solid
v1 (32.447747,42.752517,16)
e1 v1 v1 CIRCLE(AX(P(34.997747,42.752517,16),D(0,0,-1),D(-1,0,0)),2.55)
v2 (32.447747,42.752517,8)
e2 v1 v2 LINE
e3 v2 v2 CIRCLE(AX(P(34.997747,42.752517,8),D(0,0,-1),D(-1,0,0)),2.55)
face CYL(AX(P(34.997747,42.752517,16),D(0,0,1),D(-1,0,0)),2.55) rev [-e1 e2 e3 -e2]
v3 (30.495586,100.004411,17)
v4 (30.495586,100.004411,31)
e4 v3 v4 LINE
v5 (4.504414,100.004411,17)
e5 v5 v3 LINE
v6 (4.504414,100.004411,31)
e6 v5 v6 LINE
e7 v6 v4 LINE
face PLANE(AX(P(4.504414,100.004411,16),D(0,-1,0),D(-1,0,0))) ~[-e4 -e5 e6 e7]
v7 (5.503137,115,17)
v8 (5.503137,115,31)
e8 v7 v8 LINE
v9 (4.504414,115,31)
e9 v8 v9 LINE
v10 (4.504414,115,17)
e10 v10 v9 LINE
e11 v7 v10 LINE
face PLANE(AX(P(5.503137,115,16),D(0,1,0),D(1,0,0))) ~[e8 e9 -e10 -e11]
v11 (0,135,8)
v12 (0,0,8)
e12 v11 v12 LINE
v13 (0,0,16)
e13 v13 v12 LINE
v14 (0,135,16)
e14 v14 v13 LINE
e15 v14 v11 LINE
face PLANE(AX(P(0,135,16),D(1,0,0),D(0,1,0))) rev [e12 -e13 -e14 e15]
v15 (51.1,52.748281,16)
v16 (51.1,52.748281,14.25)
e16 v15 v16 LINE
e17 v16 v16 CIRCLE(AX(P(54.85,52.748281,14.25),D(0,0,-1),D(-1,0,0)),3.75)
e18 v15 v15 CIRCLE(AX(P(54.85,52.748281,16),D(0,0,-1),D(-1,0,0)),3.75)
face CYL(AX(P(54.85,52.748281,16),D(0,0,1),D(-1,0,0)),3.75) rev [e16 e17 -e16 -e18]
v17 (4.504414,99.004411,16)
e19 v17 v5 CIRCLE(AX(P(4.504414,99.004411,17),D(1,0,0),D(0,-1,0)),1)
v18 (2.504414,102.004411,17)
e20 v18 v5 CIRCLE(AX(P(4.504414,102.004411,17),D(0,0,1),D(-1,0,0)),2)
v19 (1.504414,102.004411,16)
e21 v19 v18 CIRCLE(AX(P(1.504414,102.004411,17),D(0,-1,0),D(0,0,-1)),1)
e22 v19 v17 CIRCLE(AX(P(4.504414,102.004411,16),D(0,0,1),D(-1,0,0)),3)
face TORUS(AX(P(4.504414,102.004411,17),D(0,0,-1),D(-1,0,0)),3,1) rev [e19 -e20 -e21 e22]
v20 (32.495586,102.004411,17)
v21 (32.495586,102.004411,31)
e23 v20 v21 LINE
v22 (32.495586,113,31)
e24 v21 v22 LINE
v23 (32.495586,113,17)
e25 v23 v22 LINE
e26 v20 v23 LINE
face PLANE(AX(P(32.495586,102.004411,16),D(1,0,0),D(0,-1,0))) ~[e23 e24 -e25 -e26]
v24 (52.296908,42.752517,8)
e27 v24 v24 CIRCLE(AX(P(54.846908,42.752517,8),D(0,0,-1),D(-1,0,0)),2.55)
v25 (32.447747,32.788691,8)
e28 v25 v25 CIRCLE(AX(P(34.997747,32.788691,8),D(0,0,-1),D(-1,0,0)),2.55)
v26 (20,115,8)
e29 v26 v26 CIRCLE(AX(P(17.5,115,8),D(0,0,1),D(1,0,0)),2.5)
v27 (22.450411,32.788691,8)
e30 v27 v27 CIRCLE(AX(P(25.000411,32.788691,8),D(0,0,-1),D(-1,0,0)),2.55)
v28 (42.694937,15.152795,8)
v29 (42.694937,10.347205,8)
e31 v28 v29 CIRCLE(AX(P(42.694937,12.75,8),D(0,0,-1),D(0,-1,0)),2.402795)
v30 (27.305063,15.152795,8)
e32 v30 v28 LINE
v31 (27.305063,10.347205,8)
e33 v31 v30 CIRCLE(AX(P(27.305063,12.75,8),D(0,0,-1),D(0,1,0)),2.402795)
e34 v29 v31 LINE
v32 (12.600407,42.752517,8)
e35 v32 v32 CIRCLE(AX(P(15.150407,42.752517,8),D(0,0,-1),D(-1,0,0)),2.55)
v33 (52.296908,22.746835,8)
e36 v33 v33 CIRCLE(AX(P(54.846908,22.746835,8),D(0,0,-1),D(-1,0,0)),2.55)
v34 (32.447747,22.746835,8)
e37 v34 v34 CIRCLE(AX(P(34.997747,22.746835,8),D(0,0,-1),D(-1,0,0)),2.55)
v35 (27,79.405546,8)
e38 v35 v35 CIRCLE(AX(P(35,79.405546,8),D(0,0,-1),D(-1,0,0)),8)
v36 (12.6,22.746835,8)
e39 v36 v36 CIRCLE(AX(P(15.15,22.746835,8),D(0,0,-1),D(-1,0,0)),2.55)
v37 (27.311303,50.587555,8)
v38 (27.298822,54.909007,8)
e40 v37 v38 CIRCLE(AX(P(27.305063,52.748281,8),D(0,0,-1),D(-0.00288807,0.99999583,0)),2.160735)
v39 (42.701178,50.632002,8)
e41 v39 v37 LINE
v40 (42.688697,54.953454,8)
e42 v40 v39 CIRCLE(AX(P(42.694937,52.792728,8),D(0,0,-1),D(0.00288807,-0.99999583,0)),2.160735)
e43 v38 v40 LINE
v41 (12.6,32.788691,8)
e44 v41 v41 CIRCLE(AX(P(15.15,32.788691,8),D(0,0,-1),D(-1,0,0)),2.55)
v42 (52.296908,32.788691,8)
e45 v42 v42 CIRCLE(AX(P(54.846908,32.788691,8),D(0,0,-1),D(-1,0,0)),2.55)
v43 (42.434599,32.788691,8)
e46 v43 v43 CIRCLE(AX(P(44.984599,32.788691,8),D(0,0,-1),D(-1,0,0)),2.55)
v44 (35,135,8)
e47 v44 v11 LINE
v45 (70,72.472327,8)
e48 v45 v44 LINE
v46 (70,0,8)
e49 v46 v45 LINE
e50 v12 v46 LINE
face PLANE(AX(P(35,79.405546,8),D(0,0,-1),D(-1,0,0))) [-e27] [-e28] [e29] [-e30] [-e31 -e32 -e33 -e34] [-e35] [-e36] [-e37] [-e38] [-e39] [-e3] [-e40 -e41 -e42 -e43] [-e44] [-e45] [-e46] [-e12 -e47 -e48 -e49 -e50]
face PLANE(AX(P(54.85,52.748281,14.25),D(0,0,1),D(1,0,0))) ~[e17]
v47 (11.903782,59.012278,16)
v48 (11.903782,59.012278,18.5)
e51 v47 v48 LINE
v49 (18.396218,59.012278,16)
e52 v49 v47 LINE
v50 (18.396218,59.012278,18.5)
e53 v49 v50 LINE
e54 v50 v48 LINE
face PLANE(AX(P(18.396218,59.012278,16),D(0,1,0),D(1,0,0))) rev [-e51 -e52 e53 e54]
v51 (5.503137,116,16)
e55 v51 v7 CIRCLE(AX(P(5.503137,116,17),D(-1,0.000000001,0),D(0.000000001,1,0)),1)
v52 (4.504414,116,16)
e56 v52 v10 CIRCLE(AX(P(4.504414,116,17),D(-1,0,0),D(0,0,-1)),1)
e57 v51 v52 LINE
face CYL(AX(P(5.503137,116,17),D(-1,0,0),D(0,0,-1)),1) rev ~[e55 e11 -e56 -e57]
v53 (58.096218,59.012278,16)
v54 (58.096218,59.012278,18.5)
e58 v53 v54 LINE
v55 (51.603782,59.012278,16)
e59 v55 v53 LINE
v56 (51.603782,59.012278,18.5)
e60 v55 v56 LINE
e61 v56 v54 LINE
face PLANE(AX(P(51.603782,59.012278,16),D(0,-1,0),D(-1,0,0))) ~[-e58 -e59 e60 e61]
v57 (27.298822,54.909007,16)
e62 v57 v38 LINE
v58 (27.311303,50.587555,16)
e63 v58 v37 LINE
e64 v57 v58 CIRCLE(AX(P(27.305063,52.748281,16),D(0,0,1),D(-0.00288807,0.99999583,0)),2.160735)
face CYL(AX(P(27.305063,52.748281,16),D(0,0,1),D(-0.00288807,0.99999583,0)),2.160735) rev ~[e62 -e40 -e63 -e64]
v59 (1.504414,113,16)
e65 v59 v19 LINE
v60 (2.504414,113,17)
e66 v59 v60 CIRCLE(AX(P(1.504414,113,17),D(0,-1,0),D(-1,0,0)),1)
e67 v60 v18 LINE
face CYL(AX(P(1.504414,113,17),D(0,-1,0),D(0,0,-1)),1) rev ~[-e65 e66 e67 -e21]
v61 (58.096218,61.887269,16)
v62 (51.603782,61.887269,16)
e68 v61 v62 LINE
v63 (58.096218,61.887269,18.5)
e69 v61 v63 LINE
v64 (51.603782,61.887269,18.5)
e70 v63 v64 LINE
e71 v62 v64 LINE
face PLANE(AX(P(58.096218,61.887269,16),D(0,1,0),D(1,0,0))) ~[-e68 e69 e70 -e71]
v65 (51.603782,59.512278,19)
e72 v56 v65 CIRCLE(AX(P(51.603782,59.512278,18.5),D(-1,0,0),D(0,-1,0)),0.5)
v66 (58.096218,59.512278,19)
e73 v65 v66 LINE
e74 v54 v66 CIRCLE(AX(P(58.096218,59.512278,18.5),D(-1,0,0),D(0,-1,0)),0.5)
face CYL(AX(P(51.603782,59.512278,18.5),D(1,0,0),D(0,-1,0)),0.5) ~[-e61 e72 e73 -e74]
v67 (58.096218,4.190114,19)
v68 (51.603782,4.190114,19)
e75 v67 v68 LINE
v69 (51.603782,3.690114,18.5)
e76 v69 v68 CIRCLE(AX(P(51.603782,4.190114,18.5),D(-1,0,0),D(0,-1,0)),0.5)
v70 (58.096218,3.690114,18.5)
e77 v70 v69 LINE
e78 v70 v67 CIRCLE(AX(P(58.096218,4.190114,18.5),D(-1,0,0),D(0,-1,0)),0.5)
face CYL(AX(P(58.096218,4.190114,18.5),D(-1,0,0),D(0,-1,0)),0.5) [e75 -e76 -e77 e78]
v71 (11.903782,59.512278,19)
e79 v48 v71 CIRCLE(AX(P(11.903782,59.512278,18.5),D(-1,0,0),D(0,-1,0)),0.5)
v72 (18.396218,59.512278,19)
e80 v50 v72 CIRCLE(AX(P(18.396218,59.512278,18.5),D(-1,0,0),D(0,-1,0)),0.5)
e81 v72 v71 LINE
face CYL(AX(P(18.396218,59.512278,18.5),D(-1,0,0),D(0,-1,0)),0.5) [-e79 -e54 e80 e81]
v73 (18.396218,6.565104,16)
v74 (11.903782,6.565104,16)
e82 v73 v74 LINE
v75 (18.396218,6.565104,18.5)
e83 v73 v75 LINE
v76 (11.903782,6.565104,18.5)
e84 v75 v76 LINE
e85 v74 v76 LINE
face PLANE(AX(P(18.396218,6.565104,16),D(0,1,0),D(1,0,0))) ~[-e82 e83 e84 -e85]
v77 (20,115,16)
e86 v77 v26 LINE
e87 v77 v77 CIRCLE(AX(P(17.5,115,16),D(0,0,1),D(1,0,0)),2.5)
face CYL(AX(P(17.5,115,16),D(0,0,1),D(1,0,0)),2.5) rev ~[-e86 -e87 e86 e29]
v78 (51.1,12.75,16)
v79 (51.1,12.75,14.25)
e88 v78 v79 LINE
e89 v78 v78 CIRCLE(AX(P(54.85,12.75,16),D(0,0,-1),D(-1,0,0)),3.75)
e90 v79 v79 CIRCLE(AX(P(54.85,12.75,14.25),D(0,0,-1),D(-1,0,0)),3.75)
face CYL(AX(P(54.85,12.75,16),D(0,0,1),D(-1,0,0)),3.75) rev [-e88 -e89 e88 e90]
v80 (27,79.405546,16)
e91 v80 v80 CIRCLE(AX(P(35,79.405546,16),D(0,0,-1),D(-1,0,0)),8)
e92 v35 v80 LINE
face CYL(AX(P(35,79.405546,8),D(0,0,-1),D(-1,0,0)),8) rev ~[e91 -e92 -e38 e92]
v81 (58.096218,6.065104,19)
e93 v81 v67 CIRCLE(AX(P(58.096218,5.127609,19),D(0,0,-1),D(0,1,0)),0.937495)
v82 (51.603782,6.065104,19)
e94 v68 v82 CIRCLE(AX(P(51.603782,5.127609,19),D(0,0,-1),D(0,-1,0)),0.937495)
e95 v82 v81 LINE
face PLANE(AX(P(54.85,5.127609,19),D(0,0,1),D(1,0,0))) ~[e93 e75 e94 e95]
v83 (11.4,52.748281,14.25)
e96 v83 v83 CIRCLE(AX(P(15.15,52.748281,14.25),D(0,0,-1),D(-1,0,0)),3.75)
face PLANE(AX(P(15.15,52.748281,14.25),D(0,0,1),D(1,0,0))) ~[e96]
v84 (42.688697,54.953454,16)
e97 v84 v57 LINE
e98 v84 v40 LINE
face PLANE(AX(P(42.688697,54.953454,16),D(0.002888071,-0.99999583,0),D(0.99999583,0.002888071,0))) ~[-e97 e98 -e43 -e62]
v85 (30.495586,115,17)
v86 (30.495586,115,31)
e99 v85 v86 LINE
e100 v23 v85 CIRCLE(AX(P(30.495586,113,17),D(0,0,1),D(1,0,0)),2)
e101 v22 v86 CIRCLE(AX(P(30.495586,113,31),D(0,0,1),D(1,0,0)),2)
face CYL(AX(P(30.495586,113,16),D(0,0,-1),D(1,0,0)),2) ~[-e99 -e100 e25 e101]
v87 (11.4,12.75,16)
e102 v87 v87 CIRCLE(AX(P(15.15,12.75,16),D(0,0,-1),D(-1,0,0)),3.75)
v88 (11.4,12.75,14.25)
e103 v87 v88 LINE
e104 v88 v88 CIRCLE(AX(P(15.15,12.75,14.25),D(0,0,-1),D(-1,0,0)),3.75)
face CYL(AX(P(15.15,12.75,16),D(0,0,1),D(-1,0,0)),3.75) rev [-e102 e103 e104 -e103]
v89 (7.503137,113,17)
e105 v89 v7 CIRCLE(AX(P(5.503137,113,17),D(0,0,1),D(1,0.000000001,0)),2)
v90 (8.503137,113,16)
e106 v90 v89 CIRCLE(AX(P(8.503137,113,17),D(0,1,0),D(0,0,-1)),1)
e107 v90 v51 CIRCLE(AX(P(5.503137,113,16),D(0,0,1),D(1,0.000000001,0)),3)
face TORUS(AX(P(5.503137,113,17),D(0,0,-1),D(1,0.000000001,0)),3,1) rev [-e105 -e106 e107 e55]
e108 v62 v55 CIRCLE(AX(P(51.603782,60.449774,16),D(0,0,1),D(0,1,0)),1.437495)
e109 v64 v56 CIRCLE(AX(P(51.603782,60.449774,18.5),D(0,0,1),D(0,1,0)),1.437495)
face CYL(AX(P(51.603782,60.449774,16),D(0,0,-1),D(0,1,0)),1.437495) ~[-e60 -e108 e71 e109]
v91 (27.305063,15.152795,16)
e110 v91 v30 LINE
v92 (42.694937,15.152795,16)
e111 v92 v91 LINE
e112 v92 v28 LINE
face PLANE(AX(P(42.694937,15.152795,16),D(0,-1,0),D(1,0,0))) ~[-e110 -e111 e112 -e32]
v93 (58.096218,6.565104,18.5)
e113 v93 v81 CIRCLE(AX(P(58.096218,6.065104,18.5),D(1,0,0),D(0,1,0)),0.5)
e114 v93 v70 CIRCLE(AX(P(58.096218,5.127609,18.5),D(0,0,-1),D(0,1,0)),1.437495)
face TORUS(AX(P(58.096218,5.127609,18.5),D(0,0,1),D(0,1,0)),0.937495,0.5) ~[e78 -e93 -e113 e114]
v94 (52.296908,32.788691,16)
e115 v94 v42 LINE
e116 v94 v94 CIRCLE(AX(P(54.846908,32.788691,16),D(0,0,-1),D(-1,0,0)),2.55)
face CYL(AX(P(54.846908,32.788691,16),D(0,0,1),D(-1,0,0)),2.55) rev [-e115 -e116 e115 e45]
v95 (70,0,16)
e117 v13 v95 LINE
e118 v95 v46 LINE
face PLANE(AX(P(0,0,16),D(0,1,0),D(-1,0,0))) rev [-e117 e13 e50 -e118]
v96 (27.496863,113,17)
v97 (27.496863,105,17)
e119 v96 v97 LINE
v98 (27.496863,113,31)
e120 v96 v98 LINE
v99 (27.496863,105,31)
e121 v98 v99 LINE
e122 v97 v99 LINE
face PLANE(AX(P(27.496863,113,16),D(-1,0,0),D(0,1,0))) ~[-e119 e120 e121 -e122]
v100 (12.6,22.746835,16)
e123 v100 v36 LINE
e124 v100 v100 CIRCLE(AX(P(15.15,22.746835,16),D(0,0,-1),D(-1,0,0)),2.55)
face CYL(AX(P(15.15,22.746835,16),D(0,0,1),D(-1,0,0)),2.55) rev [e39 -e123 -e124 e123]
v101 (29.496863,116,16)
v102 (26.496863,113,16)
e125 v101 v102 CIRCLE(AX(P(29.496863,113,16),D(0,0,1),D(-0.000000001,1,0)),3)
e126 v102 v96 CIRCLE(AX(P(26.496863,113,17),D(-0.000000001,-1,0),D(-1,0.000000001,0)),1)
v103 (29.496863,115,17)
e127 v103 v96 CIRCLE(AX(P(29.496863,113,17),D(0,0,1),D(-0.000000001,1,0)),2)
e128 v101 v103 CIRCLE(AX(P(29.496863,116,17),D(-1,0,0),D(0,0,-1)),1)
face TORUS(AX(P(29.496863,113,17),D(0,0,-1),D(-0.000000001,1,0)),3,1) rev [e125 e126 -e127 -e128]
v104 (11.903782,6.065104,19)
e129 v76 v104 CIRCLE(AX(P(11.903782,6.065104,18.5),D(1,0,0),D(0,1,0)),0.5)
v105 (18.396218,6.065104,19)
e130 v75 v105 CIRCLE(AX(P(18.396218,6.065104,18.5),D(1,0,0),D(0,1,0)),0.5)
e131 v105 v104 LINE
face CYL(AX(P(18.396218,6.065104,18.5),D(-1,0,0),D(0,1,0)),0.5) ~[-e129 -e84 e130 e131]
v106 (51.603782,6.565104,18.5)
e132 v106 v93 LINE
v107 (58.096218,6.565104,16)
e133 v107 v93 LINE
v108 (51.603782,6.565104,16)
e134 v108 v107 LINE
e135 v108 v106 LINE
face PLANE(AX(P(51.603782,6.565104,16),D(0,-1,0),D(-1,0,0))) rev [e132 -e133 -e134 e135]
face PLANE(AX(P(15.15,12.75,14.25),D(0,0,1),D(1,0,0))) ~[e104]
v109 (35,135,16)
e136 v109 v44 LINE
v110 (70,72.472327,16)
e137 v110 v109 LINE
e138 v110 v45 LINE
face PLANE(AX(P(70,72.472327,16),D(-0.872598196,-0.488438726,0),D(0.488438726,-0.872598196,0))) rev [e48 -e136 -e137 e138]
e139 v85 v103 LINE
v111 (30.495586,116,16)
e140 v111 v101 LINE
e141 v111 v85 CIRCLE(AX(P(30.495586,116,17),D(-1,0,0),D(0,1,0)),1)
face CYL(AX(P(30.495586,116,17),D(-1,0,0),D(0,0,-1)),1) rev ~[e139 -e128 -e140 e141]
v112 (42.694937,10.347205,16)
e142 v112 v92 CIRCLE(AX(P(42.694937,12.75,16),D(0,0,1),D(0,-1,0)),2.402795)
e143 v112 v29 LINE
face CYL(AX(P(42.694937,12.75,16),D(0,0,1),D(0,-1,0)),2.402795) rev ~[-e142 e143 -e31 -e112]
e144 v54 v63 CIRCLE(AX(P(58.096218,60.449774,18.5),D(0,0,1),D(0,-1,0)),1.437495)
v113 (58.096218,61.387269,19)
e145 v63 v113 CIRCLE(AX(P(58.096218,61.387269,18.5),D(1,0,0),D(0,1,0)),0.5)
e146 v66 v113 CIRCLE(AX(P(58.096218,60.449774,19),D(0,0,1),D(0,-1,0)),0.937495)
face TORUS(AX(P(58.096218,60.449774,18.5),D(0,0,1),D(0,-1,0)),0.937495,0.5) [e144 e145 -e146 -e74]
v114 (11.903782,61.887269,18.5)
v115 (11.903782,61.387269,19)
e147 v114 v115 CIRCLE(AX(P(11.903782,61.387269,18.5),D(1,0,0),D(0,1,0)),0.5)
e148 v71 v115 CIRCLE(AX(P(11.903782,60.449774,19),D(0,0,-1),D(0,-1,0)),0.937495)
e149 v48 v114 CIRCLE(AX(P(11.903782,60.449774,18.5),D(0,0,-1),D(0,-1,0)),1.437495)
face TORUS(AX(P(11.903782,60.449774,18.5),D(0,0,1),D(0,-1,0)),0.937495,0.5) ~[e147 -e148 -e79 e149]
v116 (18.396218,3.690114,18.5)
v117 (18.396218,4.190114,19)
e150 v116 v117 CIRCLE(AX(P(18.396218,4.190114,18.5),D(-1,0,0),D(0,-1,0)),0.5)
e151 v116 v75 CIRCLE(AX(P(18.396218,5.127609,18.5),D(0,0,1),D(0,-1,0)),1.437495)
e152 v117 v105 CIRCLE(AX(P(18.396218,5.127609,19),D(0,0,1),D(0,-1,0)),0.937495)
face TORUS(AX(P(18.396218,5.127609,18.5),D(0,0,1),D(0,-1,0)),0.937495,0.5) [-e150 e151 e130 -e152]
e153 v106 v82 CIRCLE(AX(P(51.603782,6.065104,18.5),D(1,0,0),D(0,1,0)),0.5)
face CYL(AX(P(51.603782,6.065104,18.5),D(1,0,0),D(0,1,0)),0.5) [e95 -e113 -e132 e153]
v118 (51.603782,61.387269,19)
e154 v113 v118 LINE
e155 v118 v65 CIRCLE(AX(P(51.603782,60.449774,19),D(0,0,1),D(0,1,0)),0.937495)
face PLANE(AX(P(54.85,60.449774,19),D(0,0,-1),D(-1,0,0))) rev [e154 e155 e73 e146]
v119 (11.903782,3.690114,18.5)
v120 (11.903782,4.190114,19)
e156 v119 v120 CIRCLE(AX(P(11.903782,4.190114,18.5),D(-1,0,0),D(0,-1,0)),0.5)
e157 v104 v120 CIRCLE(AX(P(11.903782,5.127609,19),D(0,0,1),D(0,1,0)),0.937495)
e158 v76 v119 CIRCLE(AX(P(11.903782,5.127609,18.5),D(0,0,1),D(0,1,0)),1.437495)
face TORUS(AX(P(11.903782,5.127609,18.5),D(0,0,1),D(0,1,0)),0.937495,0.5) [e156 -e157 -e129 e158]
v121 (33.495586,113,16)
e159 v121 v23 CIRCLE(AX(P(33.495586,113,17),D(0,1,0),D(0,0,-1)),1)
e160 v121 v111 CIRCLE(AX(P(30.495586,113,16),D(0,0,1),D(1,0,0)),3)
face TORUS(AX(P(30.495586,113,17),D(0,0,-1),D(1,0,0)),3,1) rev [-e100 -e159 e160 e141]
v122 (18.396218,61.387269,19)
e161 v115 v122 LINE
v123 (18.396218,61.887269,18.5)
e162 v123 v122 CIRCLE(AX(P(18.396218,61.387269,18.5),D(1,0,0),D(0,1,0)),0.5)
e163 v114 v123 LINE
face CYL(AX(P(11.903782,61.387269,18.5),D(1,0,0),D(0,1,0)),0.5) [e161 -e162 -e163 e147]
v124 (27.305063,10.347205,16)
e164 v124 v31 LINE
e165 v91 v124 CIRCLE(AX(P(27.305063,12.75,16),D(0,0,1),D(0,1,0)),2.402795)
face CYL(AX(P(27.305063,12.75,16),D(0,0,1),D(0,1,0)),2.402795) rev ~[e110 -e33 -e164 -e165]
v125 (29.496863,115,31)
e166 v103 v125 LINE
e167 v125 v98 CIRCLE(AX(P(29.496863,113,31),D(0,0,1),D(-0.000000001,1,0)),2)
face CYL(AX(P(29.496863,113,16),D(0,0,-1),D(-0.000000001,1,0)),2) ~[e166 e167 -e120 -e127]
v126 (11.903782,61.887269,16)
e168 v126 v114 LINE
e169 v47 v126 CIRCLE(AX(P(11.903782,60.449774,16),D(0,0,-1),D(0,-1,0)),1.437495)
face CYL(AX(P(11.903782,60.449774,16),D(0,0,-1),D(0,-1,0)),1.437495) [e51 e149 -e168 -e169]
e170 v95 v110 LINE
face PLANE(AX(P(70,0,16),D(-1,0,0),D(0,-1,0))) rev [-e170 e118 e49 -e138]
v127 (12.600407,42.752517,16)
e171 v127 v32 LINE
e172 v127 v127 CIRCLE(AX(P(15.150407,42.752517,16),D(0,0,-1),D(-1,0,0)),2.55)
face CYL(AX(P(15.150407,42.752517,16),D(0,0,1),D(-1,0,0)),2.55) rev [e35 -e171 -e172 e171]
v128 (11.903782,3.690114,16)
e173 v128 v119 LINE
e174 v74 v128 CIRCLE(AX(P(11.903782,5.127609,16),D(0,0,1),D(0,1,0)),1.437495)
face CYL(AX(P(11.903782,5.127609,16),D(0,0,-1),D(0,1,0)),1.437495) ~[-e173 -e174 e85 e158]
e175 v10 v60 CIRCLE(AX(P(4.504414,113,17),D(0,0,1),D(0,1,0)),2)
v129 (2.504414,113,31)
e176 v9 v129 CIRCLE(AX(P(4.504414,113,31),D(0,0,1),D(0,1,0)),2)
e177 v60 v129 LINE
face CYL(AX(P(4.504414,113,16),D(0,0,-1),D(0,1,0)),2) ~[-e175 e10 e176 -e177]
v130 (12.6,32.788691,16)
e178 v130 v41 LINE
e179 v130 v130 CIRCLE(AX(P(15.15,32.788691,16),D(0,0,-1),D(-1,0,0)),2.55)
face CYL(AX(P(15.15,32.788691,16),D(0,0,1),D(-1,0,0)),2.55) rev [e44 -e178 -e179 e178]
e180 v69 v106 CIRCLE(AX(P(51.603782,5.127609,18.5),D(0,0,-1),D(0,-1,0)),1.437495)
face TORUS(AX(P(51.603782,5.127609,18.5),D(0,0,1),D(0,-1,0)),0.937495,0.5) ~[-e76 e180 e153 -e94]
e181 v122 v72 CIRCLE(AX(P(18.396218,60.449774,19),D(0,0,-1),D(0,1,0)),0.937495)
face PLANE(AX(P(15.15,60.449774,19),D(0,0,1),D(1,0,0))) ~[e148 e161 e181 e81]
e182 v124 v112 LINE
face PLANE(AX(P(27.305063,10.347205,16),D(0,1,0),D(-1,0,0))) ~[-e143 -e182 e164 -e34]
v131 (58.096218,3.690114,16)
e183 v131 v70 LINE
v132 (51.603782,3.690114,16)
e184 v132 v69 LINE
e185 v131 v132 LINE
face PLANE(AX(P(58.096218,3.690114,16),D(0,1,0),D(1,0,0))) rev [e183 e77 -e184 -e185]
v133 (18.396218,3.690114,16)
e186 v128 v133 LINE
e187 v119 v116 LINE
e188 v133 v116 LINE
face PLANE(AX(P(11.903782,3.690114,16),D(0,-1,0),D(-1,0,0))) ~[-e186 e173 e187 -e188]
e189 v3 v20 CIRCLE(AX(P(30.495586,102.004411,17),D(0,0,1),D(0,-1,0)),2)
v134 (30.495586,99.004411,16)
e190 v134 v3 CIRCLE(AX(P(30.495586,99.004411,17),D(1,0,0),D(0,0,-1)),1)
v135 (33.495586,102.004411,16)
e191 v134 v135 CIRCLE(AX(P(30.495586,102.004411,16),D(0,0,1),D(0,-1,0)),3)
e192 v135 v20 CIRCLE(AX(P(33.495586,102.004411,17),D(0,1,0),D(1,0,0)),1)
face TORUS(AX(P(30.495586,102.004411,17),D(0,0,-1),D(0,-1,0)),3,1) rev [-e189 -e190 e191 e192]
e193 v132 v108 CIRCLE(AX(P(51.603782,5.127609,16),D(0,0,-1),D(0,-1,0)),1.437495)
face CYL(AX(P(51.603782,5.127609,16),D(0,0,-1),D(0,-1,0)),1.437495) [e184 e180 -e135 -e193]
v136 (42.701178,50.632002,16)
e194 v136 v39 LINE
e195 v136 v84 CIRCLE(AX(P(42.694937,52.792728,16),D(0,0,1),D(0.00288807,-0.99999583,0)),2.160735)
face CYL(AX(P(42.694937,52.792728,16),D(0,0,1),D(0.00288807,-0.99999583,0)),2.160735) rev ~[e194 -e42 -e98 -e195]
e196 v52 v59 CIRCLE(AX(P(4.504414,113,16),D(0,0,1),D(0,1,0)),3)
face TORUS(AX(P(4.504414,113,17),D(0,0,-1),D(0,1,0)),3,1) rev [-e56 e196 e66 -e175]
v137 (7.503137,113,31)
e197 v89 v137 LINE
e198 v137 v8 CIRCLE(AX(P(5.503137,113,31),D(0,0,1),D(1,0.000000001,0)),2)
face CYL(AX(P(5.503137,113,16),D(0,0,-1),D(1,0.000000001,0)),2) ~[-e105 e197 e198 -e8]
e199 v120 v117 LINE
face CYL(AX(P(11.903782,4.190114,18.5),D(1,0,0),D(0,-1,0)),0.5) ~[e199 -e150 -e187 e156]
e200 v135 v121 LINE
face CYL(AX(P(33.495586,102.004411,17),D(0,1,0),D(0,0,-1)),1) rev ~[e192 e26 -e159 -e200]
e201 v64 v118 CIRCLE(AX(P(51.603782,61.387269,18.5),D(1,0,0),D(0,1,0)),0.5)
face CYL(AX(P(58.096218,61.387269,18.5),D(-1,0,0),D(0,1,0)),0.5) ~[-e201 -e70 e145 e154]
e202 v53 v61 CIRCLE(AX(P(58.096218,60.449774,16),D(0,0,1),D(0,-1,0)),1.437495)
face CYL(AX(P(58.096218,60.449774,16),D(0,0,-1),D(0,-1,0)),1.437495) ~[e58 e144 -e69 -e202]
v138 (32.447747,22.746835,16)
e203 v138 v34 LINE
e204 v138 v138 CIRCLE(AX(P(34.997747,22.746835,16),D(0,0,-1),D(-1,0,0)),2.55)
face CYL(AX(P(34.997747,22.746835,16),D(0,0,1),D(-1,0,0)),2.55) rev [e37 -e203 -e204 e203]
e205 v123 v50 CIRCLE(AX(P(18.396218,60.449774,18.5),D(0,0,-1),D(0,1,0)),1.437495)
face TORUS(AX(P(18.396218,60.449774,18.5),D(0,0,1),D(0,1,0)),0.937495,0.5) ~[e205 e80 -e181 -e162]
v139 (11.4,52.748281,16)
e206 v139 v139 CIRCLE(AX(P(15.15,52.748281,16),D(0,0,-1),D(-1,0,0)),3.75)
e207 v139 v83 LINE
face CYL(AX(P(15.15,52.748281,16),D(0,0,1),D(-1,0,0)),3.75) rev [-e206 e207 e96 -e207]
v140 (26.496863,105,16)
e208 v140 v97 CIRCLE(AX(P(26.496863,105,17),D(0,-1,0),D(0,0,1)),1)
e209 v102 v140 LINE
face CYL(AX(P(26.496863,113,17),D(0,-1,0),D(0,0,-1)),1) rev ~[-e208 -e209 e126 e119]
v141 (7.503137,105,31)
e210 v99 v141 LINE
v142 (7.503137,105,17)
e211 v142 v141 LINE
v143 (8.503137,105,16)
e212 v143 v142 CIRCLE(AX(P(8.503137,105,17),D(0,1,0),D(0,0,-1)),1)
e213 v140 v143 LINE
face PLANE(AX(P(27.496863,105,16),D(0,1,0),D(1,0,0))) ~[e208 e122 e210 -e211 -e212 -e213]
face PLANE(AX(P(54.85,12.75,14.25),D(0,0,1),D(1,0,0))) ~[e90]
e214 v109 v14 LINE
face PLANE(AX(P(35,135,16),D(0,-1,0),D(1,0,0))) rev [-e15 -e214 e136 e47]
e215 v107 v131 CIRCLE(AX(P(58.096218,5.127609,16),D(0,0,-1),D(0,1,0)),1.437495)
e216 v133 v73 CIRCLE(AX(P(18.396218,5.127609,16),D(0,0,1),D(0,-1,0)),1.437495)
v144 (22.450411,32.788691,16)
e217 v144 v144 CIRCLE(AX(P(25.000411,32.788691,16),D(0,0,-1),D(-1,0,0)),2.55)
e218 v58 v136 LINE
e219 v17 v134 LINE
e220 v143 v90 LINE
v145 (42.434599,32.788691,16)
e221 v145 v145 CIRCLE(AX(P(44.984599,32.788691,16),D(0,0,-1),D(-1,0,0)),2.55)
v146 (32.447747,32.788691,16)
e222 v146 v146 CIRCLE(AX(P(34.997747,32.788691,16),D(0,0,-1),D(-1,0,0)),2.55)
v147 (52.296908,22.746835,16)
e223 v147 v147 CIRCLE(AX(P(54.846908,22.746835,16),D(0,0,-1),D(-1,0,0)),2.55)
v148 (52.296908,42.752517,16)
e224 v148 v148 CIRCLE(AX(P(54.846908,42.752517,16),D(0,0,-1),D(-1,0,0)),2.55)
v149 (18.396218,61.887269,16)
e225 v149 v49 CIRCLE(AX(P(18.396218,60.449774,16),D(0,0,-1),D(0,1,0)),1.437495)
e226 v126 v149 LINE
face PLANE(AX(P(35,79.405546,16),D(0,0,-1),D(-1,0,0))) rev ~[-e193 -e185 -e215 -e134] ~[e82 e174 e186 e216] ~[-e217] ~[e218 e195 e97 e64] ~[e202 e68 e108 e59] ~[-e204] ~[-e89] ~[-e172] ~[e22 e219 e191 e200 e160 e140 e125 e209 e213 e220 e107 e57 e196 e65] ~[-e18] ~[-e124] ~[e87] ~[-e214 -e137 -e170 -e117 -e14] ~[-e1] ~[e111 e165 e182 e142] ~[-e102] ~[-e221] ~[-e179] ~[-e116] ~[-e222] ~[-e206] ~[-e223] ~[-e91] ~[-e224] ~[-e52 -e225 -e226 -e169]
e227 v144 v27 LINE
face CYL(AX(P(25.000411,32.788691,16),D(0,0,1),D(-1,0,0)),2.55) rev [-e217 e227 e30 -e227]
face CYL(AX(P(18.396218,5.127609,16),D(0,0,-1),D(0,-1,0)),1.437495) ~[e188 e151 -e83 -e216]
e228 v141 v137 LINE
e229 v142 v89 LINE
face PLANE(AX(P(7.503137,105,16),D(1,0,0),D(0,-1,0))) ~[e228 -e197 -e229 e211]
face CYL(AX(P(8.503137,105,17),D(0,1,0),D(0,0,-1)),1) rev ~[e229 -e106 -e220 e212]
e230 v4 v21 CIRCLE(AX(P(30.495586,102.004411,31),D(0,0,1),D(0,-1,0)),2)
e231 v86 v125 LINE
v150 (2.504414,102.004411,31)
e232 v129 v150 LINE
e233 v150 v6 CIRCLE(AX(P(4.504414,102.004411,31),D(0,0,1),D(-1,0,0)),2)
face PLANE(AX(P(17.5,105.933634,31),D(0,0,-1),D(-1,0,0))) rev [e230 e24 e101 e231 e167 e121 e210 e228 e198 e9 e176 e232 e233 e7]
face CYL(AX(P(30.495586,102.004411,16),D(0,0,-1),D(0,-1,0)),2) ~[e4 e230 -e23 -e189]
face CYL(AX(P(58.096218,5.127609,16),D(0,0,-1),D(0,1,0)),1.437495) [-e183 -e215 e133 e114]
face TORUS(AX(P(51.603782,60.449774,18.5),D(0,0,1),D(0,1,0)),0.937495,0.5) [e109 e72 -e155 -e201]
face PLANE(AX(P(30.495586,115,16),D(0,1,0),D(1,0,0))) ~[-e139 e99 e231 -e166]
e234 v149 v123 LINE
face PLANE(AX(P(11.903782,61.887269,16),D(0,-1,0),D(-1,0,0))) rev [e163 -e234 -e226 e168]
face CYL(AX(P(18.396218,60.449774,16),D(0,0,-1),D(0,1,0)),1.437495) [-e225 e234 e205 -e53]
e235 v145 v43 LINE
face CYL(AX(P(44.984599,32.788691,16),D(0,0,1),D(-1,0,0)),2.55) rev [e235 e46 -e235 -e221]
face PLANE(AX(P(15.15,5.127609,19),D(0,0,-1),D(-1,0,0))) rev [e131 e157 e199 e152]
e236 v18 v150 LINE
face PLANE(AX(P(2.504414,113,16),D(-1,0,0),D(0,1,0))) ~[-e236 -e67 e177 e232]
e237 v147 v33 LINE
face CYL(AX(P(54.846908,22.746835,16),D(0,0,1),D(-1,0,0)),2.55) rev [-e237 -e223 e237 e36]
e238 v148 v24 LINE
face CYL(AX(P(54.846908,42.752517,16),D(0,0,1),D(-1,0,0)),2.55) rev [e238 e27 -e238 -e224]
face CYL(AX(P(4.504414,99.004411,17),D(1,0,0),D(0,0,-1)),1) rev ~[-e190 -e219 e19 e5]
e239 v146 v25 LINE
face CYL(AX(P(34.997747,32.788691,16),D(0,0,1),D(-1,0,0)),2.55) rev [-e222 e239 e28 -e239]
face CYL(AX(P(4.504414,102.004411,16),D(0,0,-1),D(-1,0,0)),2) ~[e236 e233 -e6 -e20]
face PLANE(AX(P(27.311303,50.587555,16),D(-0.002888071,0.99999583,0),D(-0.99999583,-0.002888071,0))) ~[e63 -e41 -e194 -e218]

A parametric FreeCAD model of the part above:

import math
import FreeCAD as App
import Part
import Sketcher


def edges_at(feature, points):
    """Names of the edges that pass closest to the given points."""
    edges = feature.Shape.Edges
    near = lambda p: min(range(len(edges)), key=lambda i: edges[i].distToShape(Part.Vertex(*p))[0])
    return sorted({f"Edge{near(p) + 1}" for p in points})

doc = App.newDocument("Part")
body = doc.addObject("PartDesign::Body", "Body")

sketch1 = body.newObject("Sketcher::SketchObject", "Sketch")
sketch1.AttachmentSupport = (doc.getObject("XY_Plane"), [""])
sketch1.MapMode = "FlatFace"
sketch1.addGeometry(Part.LineSegment(App.Vector(0, 0, 0), App.Vector(70, 0, 0)), False)
sketch1.addGeometry(Part.LineSegment(App.Vector(70, 0, 0), App.Vector(70, 72.5, 0)), False)
sketch1.addGeometry(Part.LineSegment(App.Vector(70, 72.5, 0), App.Vector(35, 135, 0)), False)
sketch1.addGeometry(Part.LineSegment(App.Vector(35, 135, 0), App.Vector(0, 135, 0)), False)
sketch1.addGeometry(Part.LineSegment(App.Vector(0, 135, 0), App.Vector(0, 0, 0)), False)
sketch1.addGeometry(Part.Circle(App.Vector(17.5, 115, 0), App.Vector(0, 0, 1), 2.5), False)
sketch1.addConstraint(Sketcher.Constraint("Coincident", 0, 2, 1, 1))
sketch1.addConstraint(Sketcher.Constraint("Coincident", 1, 2, 2, 1))
sketch1.addConstraint(Sketcher.Constraint("Coincident", 2, 2, 3, 1))
sketch1.addConstraint(Sketcher.Constraint("Coincident", 3, 2, 4, 1))
sketch1.addConstraint(Sketcher.Constraint("Coincident", 4, 2, 0, 1))
sketch1.addConstraint(Sketcher.Constraint("Horizontal", 0))
sketch1.addConstraint(Sketcher.Constraint("Vertical", 1))
sketch1.addConstraint(Sketcher.Constraint("Horizontal", 3))
sketch1.addConstraint(Sketcher.Constraint("Vertical", 4))
sketch1.addConstraint(Sketcher.Constraint("Coincident", 4, 2, -1, 1))
sketch1.addConstraint(Sketcher.Constraint("Diameter", 5, 5.0))
sketch1.addConstraint(Sketcher.Constraint("DistanceX", 0, 1, 0, 2, 70.0))
sketch1.addConstraint(Sketcher.Constraint("DistanceX", 3, 2, 3, 1, 35.0))
sketch1.addConstraint(Sketcher.Constraint("DistanceY", 4, 2, 4, 1, 135.0))
sketch1.addConstraint(Sketcher.Constraint("DistanceY", -1, 1, 5, 3, 115.0))
sketch1.addConstraint(Sketcher.Constraint("DistanceX", -1, 1, 5, 3, 17.5))
sketch1.addConstraint(Sketcher.Constraint("Distance", 2, 71.65689))
pad1 = body.newObject("PartDesign::Pad", "Pad")
pad1.Profile = sketch1
pad1.Length = 8

sketch2 = body.newObject("Sketcher::SketchObject", "Sketch001")
sketch2.AttachmentSupport = (doc.getObject("XY_Plane"), [""])
sketch2.MapMode = "FlatFace"
sketch2.addGeometry(Part.LineSegment(App.Vector(7.5, 105, 0), App.Vector(27.5, 105, 0)), False)
sketch2.addGeometry(Part.LineSegment(App.Vector(27.5, 105, 0), App.Vector(27.5, 113, 0)), False)
sketch2.addGeometry(Part.ArcOfCircle(Part.Circle(App.Vector(29.5, 113, 0), App.Vector(0, 0, 1), 2), math.radians(90), math.radians(180)), False)
sketch2.addGeometry(Part.LineSegment(App.Vector(29.5, 115, 0), App.Vector(30.5, 115, 0)), False)
sketch2.addGeometry(Part.ArcOfCircle(Part.Circle(App.Vector(30.5, 113, 0), App.Vector(0, 0, 1), 2), math.radians(0), math.radians(90)), False)
sketch2.addGeometry(Part.LineSegment(App.Vector(32.5, 113, 0), App.Vector(32.5, 102, 0)), False)
sketch2.addGeometry(Part.ArcOfCircle(Part.Circle(App.Vector(30.5, 102, 0), App.Vector(0, 0, 1), 2), math.radians(-90), math.radians(0)), False)
sketch2.addGeometry(Part.LineSegment(App.Vector(30.5, 100, 0), App.Vector(4.5, 100, 0)), False)
sketch2.addGeometry(Part.ArcOfCircle(Part.Circle(App.Vector(4.5, 102, 0), App.Vector(0, 0, 1), 2), math.radians(180), math.radians(270)), False)
sketch2.addGeometry(Part.LineSegment(App.Vector(2.5, 102, 0), App.Vector(2.5, 113, 0)), False)
sketch2.addGeometry(Part.ArcOfCircle(Part.Circle(App.Vector(4.5, 113, 0), App.Vector(0, 0, 1), 2), math.radians(90), math.radians(180)), False)
sketch2.addGeometry(Part.LineSegment(App.Vector(4.5, 115, 0), App.Vector(5.5, 115, 0)), False)
sketch2.addGeometry(Part.ArcOfCircle(Part.Circle(App.Vector(5.5, 113, 0), App.Vector(0, 0, 1), 2), math.radians(0), math.radians(90)), False)
sketch2.addGeometry(Part.LineSegment(App.Vector(7.5, 113, 0), App.Vector(7.5, 105, 0)), False)
sketch2.addConstraint(Sketcher.Constraint("Coincident", 0, 2, 1, 1))
sketch2.addConstraint(Sketcher.Constraint("Tangent", 1, 2, 2, 2))
sketch2.addConstraint(Sketcher.Constraint("Tangent", 2, 1, 3, 1))
sketch2.addConstraint(Sketcher.Constraint("Tangent", 3, 2, 4, 2))
sketch2.addConstraint(Sketcher.Constraint("Tangent", 4, 1, 5, 1))
sketch2.addConstraint(Sketcher.Constraint("Tangent", 5, 2, 6, 2))
sketch2.addConstraint(Sketcher.Constraint("Tangent", 6, 1, 7, 1))
sketch2.addConstraint(Sketcher.Constraint("Tangent", 7, 2, 8, 2))
sketch2.addConstraint(Sketcher.Constraint("Tangent", 8, 1, 9, 1))
sketch2.addConstraint(Sketcher.Constraint("Tangent", 9, 2, 10, 2))
sketch2.addConstraint(Sketcher.Constraint("Tangent", 10, 1, 11, 1))
sketch2.addConstraint(Sketcher.Constraint("Tangent", 11, 2, 12, 2))
sketch2.addConstraint(Sketcher.Constraint("Tangent", 12, 1, 13, 1))
sketch2.addConstraint(Sketcher.Constraint("Coincident", 13, 2, 0, 1))
sketch2.addConstraint(Sketcher.Constraint("Horizontal", 0))
sketch2.addConstraint(Sketcher.Constraint("Vertical", 1))
sketch2.addConstraint(Sketcher.Constraint("Horizontal", 3))
sketch2.addConstraint(Sketcher.Constraint("Vertical", 5))
sketch2.addConstraint(Sketcher.Constraint("Horizontal", 7))
sketch2.addConstraint(Sketcher.Constraint("Vertical", 9))
sketch2.addConstraint(Sketcher.Constraint("Horizontal", 11))
sketch2.addConstraint(Sketcher.Constraint("Vertical", 13))
sketch2.addConstraint(Sketcher.Constraint("Equal", 2, 4))
sketch2.addConstraint(Sketcher.Constraint("Equal", 4, 6))
sketch2.addConstraint(Sketcher.Constraint("Equal", 6, 8))
sketch2.addConstraint(Sketcher.Constraint("Equal", 8, 10))
sketch2.addConstraint(Sketcher.Constraint("Equal", 10, 12))
sketch2.addConstraint(Sketcher.Constraint("Horizontal", 4, 3, 10, 3))
sketch2.addConstraint(Sketcher.Constraint("Equal", 3, 11))
sketch2.addConstraint(Sketcher.Constraint("Radius", 2, 2.0))
sketch2.addConstraint(Sketcher.Constraint("DistanceY", 1, 1, 1, 2, 8.0))
sketch2.addConstraint(Sketcher.Constraint("DistanceY", -1, 1, 2, 3, 113.0))
sketch2.addConstraint(Sketcher.Constraint("DistanceX", 7, 2, 7, 1, 25.991172))
sketch2.addConstraint(Sketcher.Constraint("DistanceY", 5, 2, 5, 1, 10.995589))
sketch2.addConstraint(Sketcher.Constraint("DistanceX", 0, 1, 0, 2, 19.993726))
sketch2.addConstraint(Sketcher.Constraint("DistanceX", -1, 1, 2, 3, 29.496863))
pad2 = body.newObject("PartDesign::Pad", "Pad001")
pad2.Profile = sketch2
pad2.Length = 15
pad2.Reversed = True
doc.recompute()

fillet = body.newObject("PartDesign::Fillet", "Fillet")
fillet.Base = (pad2, edges_at(pad2, [
    (7.503, 109, 0),
    (27.497, 109, 0),
    (28.083, 114.414, 0),
    (29.996, 115, 0),
    (31.91, 114.414, 0),
    (32.496, 107.502, 0),
    (31.91, 100.59, 0),
    (17.5, 100.004, 0),
    (3.09, 100.59, 0),
    (2.504, 107.502, 0),
    (3.09, 114.414, 0),
    (5.004, 115, 0),
    (6.917, 114.414, 0),
]))
fillet.Radius = 1

sketch3 = body.newObject("Sketcher::SketchObject", "Sketch002")
sketch3.AttachmentSupport = (doc.getObject("XY_Plane"), [""])
sketch3.MapMode = "FlatFace"
sketch3.addGeometry(Part.Circle(App.Vector(54.9, 52.7, 0), App.Vector(0, 0, 1), 3.8), False)
sketch3.addGeometry(Part.Circle(App.Vector(15.2, 52.7, 0), App.Vector(0, 0, 1), 3.8), False)
sketch3.addGeometry(Part.Circle(App.Vector(54.9, 12.8, 0), App.Vector(0, 0, 1), 3.8), False)
sketch3.addGeometry(Part.Circle(App.Vector(15.2, 12.8, 0), App.Vector(0, 0, 1), 3.8), False)
sketch3.addConstraint(Sketcher.Constraint("Equal", 0, 1))
sketch3.addConstraint(Sketcher.Constraint("Equal", 1, 2))
sketch3.addConstraint(Sketcher.Constraint("Equal", 2, 3))
sketch3.addConstraint(Sketcher.Constraint("Horizontal", 0, 3, 1, 3))
sketch3.addConstraint(Sketcher.Constraint("Horizontal", 2, 3, 3, 3))
sketch3.addConstraint(Sketcher.Constraint("Vertical", 0, 3, 2, 3))
sketch3.addConstraint(Sketcher.Constraint("Vertical", 1, 3, 3, 3))
sketch3.addConstraint(Sketcher.Constraint("Diameter", 0, 7.5))
sketch3.addConstraint(Sketcher.Constraint("DistanceX", 1, 3, 0, 3, 39.7))
sketch3.addConstraint(Sketcher.Constraint("DistanceX", -1, 1, 0, 3, 54.85))
sketch3.addConstraint(Sketcher.Constraint("DistanceY", -1, 1, 2, 3, 12.75))
sketch3.addConstraint(Sketcher.Constraint("DistanceY", -1, 1, 0, 3, 52.748281))
pocket1 = body.newObject("PartDesign::Pocket", "Pocket")
pocket1.Profile = sketch3
pocket1.Length = 1.75
pocket1.Reversed = True

sketch4 = body.newObject("Sketcher::SketchObject", "Sketch003")
sketch4.AttachmentSupport = (doc.getObject("XY_Plane"), [""])
sketch4.MapMode = "FlatFace"
sketch4.addGeometry(Part.Circle(App.Vector(54.8, 42.8, 0), App.Vector(0, 0, 1), 2.5), False)
sketch4.addGeometry(Part.Circle(App.Vector(35, 42.8, 0), App.Vector(0, 0, 1), 2.5), False)
sketch4.addGeometry(Part.Circle(App.Vector(54.8, 32.8, 0), App.Vector(0, 0, 1), 2.5), False)
sketch4.addGeometry(Part.Circle(App.Vector(45, 32.8, 0), App.Vector(0, 0, 1), 2.5), False)
sketch4.addGeometry(Part.Circle(App.Vector(35, 32.8, 0), App.Vector(0, 0, 1), 2.5), False)
sketch4.addGeometry(Part.Circle(App.Vector(25, 32.8, 0), App.Vector(0, 0, 1), 2.5), False)
sketch4.addGeometry(Part.Circle(App.Vector(15.2, 42.8, 0), App.Vector(0, 0, 1), 2.5), False)
sketch4.addGeometry(Part.Circle(App.Vector(15.2, 32.8, 0), App.Vector(0, 0, 1), 2.5), False)
sketch4.addGeometry(Part.Circle(App.Vector(15.2, 22.7, 0), App.Vector(0, 0, 1), 2.5), False)
sketch4.addGeometry(Part.Circle(App.Vector(35, 22.7, 0), App.Vector(0, 0, 1), 2.5), False)
sketch4.addGeometry(Part.Circle(App.Vector(54.8, 22.7, 0), App.Vector(0, 0, 1), 2.5), False)
sketch4.addConstraint(Sketcher.Constraint("Equal", 0, 1))
sketch4.addConstraint(Sketcher.Constraint("Equal", 1, 2))
sketch4.addConstraint(Sketcher.Constraint("Equal", 2, 3))
sketch4.addConstraint(Sketcher.Constraint("Equal", 3, 4))
sketch4.addConstraint(Sketcher.Constraint("Equal", 4, 5))
sketch4.addConstraint(Sketcher.Constraint("Equal", 5, 6))
sketch4.addConstraint(Sketcher.Constraint("Equal", 6, 7))
sketch4.addConstraint(Sketcher.Constraint("Equal", 7, 8))
sketch4.addConstraint(Sketcher.Constraint("Equal", 8, 9))
sketch4.addConstraint(Sketcher.Constraint("Equal", 9, 10))
sketch4.addConstraint(Sketcher.Constraint("Horizontal", 0, 3, 1, 3))
sketch4.addConstraint(Sketcher.Constraint("Horizontal", 2, 3, 3, 3))
sketch4.addConstraint(Sketcher.Constraint("Horizontal", 3, 3, 4, 3))
sketch4.addConstraint(Sketcher.Constraint("Horizontal", 4, 3, 5, 3))
sketch4.addConstraint(Sketcher.Constraint("Horizontal", 1, 3, 6, 3))
sketch4.addConstraint(Sketcher.Constraint("Horizontal", 5, 3, 7, 3))
sketch4.addConstraint(Sketcher.Constraint("Horizontal", 8, 3, 9, 3))
sketch4.addConstraint(Sketcher.Constraint("Horizontal", 9, 3, 10, 3))
sketch4.addConstraint(Sketcher.Constraint("Vertical", 0, 3, 2, 3))
sketch4.addConstraint(Sketcher.Constraint("Vertical", 1, 3, 4, 3))
sketch4.addConstraint(Sketcher.Constraint("Vertical", 7, 3, 8, 3))
sketch4.addConstraint(Sketcher.Constraint("Vertical", 4, 3, 9, 3))
sketch4.addConstraint(Sketcher.Constraint("Vertical", 2, 3, 10, 3))
sketch4.addConstraint(Sketcher.Constraint("Diameter", 0, 5.1))
sketch4.addConstraint(Sketcher.Constraint("DistanceX", -1, 1, 7, 3, 15.15))
sketch4.addConstraint(Sketcher.Constraint("DistanceX", -1, 1, 3, 3, 44.984599))
sketch4.addConstraint(Sketcher.Constraint("DistanceX", 6, 3, 0, 3, 39.696501))
sketch4.addConstraint(Sketcher.Constraint("DistanceX", -1, 1, 0, 3, 54.846908))
sketch4.addConstraint(Sketcher.Constraint("DistanceY", -1, 1, 2, 3, 32.788691))
sketch4.addConstraint(Sketcher.Constraint("DistanceX", -1, 1, 5, 3, 25.000411))
sketch4.addConstraint(Sketcher.Constraint("DistanceX", 1, 3, 0, 3, 19.849161))
sketch4.addConstraint(Sketcher.Constraint("DistanceY", 8, 3, 6, 3, 20.005682))
sketch4.addConstraint(Sketcher.Constraint("DistanceY", -1, 1, 0, 3, 42.752517))
pocket2 = body.newObject("PartDesign::Pocket", "Pocket001")
pocket2.Profile = sketch4
pocket2.Type = "ThroughAll"
pocket2.Reversed = True

sketch5 = body.newObject("Sketcher::SketchObject", "Sketch004")
sketch5.AttachmentSupport = (doc.getObject("XY_Plane"), [""])
sketch5.MapMode = "FlatFace"
sketch5.addGeometry(Part.LineSegment(App.Vector(27.3, 54.9, 0), App.Vector(42.7, 55, 0)), False)
sketch5.addGeometry(Part.ArcOfCircle(Part.Circle(App.Vector(42.7, 52.8, 0), App.Vector(0, 0, 1), 2.2), math.radians(-90), math.radians(90)), False)
sketch5.addGeometry(Part.LineSegment(App.Vector(42.7, 50.6, 0), App.Vector(27.3, 50.6, 0)), False)
sketch5.addGeometry(Part.ArcOfCircle(Part.Circle(App.Vector(27.3, 52.7, 0), App.Vector(0, 0, 1), 2.2), math.radians(90), math.radians(270)), False)
sketch5.addGeometry(Part.LineSegment(App.Vector(27.3, 15.2, 0), App.Vector(42.7, 15.2, 0)), False)
sketch5.addGeometry(Part.ArcOfCircle(Part.Circle(App.Vector(42.7, 12.8, 0), App.Vector(0, 0, 1), 2.4), math.radians(-90), math.radians(90)), False)
sketch5.addGeometry(Part.LineSegment(App.Vector(42.7, 10.3, 0), App.Vector(27.3, 10.3, 0)), False)
sketch5.addGeometry(Part.ArcOfCircle(Part.Circle(App.Vector(27.3, 12.8, 0), App.Vector(0, 0, 1), 2.4), math.radians(90), math.radians(270)), False)
sketch5.addConstraint(Sketcher.Constraint("Tangent", 0, 2, 1, 2))
sketch5.addConstraint(Sketcher.Constraint("Tangent", 1, 1, 2, 1))
sketch5.addConstraint(Sketcher.Constraint("Tangent", 2, 2, 3, 2))
sketch5.addConstraint(Sketcher.Constraint("Tangent", 3, 1, 0, 1))
sketch5.addConstraint(Sketcher.Constraint("Tangent", 4, 2, 5, 2))
sketch5.addConstraint(Sketcher.Constraint("Tangent", 5, 1, 6, 1))
sketch5.addConstraint(Sketcher.Constraint("Tangent", 6, 2, 7, 2))
sketch5.addConstraint(Sketcher.Constraint("Tangent", 7, 1, 4, 1))
sketch5.addConstraint(Sketcher.Constraint("Horizontal", 4))
sketch5.addConstraint(Sketcher.Constraint("Horizontal", 6))
sketch5.addConstraint(Sketcher.Constraint("Equal", 1, 3))
sketch5.addConstraint(Sketcher.Constraint("Vertical", 1, 3, 5, 3))
sketch5.addConstraint(Sketcher.Constraint("Vertical", 3, 3, 7, 3))
sketch5.addConstraint(Sketcher.Constraint("DistanceY", -1, 1, 5, 3, 12.75))
sketch5.addConstraint(Sketcher.Constraint("Radius", 1, 2.160735))
sketch5.addConstraint(Sketcher.Constraint("Radius", 5, 2.402795))
sketch5.addConstraint(Sketcher.Constraint("DistanceY", 2, 2, 0, 2, 4.365899))
sketch5.addConstraint(Sketcher.Constraint("Distance", 0, 15.389939))
sketch5.addConstraint(Sketcher.Constraint("DistanceY", -1, 1, 1, 3, 52.792728))
sketch5.addConstraint(Sketcher.Constraint("DistanceX", -1, 1, 1, 3, 42.694937))
pocket3 = body.newObject("PartDesign::Pocket", "Pocket002")
pocket3.Profile = sketch5
pocket3.Type = "ThroughAll"
pocket3.Reversed = True

sketch6 = body.newObject("Sketcher::SketchObject", "Sketch005")
sketch6.AttachmentSupport = (doc.getObject("XY_Plane"), [""])
sketch6.MapMode = "FlatFace"
sketch6.addGeometry(Part.LineSegment(App.Vector(51.6, 61.9, 0), App.Vector(58.1, 61.9, 0)), False)
sketch6.addGeometry(Part.ArcOfCircle(Part.Circle(App.Vector(58.1, 60.4, 0), App.Vector(0, 0, 1), 1.4), math.radians(-90), math.radians(90)), False)
sketch6.addGeometry(Part.LineSegment(App.Vector(58.1, 59, 0), App.Vector(51.6, 59, 0)), False)
sketch6.addGeometry(Part.ArcOfCircle(Part.Circle(App.Vector(51.6, 60.4, 0), App.Vector(0, 0, 1), 1.4), math.radians(90), math.radians(270)), False)
sketch6.addGeometry(Part.LineSegment(App.Vector(11.9, 61.9, 0), App.Vector(18.4, 61.9, 0)), False)
sketch6.addGeometry(Part.ArcOfCircle(Part.Circle(App.Vector(18.4, 60.4, 0), App.Vector(0, 0, 1), 1.4), math.radians(-90), math.radians(90)), False)
sketch6.addGeometry(Part.LineSegment(App.Vector(18.4, 59, 0), App.Vector(11.9, 59, 0)), False)
sketch6.addGeometry(Part.ArcOfCircle(Part.Circle(App.Vector(11.9, 60.4, 0), App.Vector(0, 0, 1), 1.4), math.radians(90), math.radians(270)), False)
sketch6.addGeometry(Part.LineSegment(App.Vector(58.1, 3.7, 0), App.Vector(51.6, 3.7, 0)), False)
sketch6.addGeometry(Part.ArcOfCircle(Part.Circle(App.Vector(51.6, 5.1, 0), App.Vector(0, 0, 1), 1.4), math.radians(90), math.radians(270)), False)
sketch6.addGeometry(Part.LineSegment(App.Vector(51.6, 6.6, 0), App.Vector(58.1, 6.6, 0)), False)
sketch6.addGeometry(Part.ArcOfCircle(Part.Circle(App.Vector(58.1, 5.1, 0), App.Vector(0, 0, 1), 1.4), math.radians(-90), math.radians(90)), False)
sketch6.addGeometry(Part.LineSegment(App.Vector(18.4, 3.7, 0), App.Vector(11.9, 3.7, 0)), False)
sketch6.addGeometry(Part.ArcOfCircle(Part.Circle(App.Vector(11.9, 5.1, 0), App.Vector(0, 0, 1), 1.4), math.radians(90), math.radians(270)), False)
sketch6.addGeometry(Part.LineSegment(App.Vector(11.9, 6.6, 0), App.Vector(18.4, 6.6, 0)), False)
sketch6.addGeometry(Part.ArcOfCircle(Part.Circle(App.Vector(18.4, 5.1, 0), App.Vector(0, 0, 1), 1.4), math.radians(-90), math.radians(90)), False)
sketch6.addConstraint(Sketcher.Constraint("Tangent", 0, 2, 1, 2))
sketch6.addConstraint(Sketcher.Constraint("Tangent", 1, 1, 2, 1))
sketch6.addConstraint(Sketcher.Constraint("Tangent", 2, 2, 3, 2))
sketch6.addConstraint(Sketcher.Constraint("Tangent", 3, 1, 0, 1))
sketch6.addConstraint(Sketcher.Constraint("Tangent", 4, 2, 5, 2))
sketch6.addConstraint(Sketcher.Constraint("Tangent", 5, 1, 6, 1))
sketch6.addConstraint(Sketcher.Constraint("Tangent", 6, 2, 7, 2))
sketch6.addConstraint(Sketcher.Constraint("Tangent", 7, 1, 4, 1))
sketch6.addConstraint(Sketcher.Constraint("Tangent", 8, 2, 9, 2))
sketch6.addConstraint(Sketcher.Constraint("Tangent", 9, 1, 10, 1))
sketch6.addConstraint(Sketcher.Constraint("Tangent", 10, 2, 11, 2))
sketch6.addConstraint(Sketcher.Constraint("Tangent", 11, 1, 8, 1))
sketch6.addConstraint(Sketcher.Constraint("Tangent", 12, 2, 13, 2))
sketch6.addConstraint(Sketcher.Constraint("Tangent", 13, 1, 14, 1))
sketch6.addConstraint(Sketcher.Constraint("Tangent", 14, 2, 15, 2))
sketch6.addConstraint(Sketcher.Constraint("Tangent", 15, 1, 12, 1))
sketch6.addConstraint(Sketcher.Constraint("Horizontal", 0))
sketch6.addConstraint(Sketcher.Constraint("Horizontal", 2))
sketch6.addConstraint(Sketcher.Constraint("Horizontal", 4))
sketch6.addConstraint(Sketcher.Constraint("Horizontal", 6))
sketch6.addConstraint(Sketcher.Constraint("Horizontal", 8))
sketch6.addConstraint(Sketcher.Constraint("Horizontal", 10))
sketch6.addConstraint(Sketcher.Constraint("Horizontal", 12))
sketch6.addConstraint(Sketcher.Constraint("Horizontal", 14))
sketch6.addConstraint(Sketcher.Constraint("Equal", 3, 5))
sketch6.addConstraint(Sketcher.Constraint("Equal", 7, 9))
sketch6.addConstraint(Sketcher.Constraint("Equal", 11, 13))
sketch6.addConstraint(Sketcher.Constraint("Horizontal", 3, 3, 5, 3))
sketch6.addConstraint(Sketcher.Constraint("Horizontal", 11, 3, 13, 3))
sketch6.addConstraint(Sketcher.Constraint("Vertical", 3, 3, 9, 3))
sketch6.addConstraint(Sketcher.Constraint("Vertical", 1, 3, 11, 3))
sketch6.addConstraint(Sketcher.Constraint("Vertical", 7, 3, 13, 3))
sketch6.addConstraint(Sketcher.Constraint("Vertical", 5, 3, 15, 3))
sketch6.addConstraint(Sketcher.Constraint("Equal", 2, 4))
sketch6.addConstraint(Sketcher.Constraint("DistanceX", 5, 3, 1, 3, 39.7))
sketch6.addConstraint(Sketcher.Constraint("Radius", 1, 1.437495))
sketch6.addConstraint(Sketcher.Constraint("DistanceX", 0, 1, 0, 2, 6.492437))
sketch6.addConstraint(Sketcher.Constraint("DistanceX", -1, 1, 1, 3, 58.096218))
sketch6.addConstraint(Sketcher.Constraint("DistanceY", -1, 1, 9, 3, 5.127609))
sketch6.addConstraint(Sketcher.Constraint("DistanceY", -1, 1, 0, 2, 61.887269))
pad3 = body.newObject("PartDesign::Pad", "Pad002")
pad3.Profile = sketch6
pad3.Length = 3
pad3.Reversed = True
doc.recompute()

fillet2 = body.newObject("PartDesign::Fillet", "Fillet001")
fillet2.Base = (pad3, edges_at(pad3, [
    (59.534, 60.45, -3),
    (54.85, 59.012, -3),
    (50.166, 60.45, -3),
    (54.85, 61.887, -3),
    (10.466, 60.45, -3),
    (15.15, 61.887, -3),
    (19.834, 60.45, -3),
    (15.15, 59.012, -3),
    (59.534, 5.128, -3),
    (54.85, 3.69, -3),
    (50.166, 5.128, -3),
    (54.85, 6.565, -3),
    (10.466, 5.128, -3),
    (15.15, 6.565, -3),
    (19.834, 5.128, -3),
    (15.15, 3.69, -3),
]))
fillet2.Radius = 0.5

sketch7 = body.newObject("Sketcher::SketchObject", "Sketch006")
sketch7.AttachmentSupport = (doc.getObject("XY_Plane"), [""])
sketch7.MapMode = "FlatFace"
sketch7.addGeometry(Part.Circle(App.Vector(35, 79, 0), App.Vector(0, 0, 1), 12), False)
sketch7.addConstraint(Sketcher.Constraint("Diameter", 0, 24.0))
sketch7.addConstraint(Sketcher.Constraint("DistanceX", -1, 1, 0, 3, 35.0))
sketch7.addConstraint(Sketcher.Constraint("DistanceY", -1, 1, 0, 3, 79.405546))
pocket4 = body.newObject("PartDesign::Pocket", "Pocket003")
pocket4.Profile = sketch7
pocket4.Type = "ThroughAll"
pocket4.Reversed = True

sketch8 = body.newObject("Sketcher::SketchObject", "Sketch007")
sketch8.AttachmentSupport = (doc.getObject("XY_Plane"), [""])
sketch8.MapMode = "FlatFace"
sketch8.addGeometry(Part.Circle(App.Vector(61, 71.8, 0), App.Vector(0, 0, 1), 2.5), False)
sketch8.addGeometry(Part.Circle(App.Vector(9, 79.4, 0), App.Vector(0, 0, 1), 2.5), False)
sketch8.addGeometry(Part.Circle(App.Vector(41, 105.4, 0), App.Vector(0, 0, 1), 2.5), False)
sketch8.addConstraint(Sketcher.Constraint("Equal", 0, 1))
sketch8.addConstraint(Sketcher.Constraint("Equal", 1, 2))
sketch8.addConstraint(Sketcher.Constraint("Diameter", 0, 5.0))
sketch8.addConstraint(Sketcher.Constraint("DistanceX", -1, 1, 0, 3, 61.0))
sketch8.addConstraint(Sketcher.Constraint("DistanceX", -1, 1, 1, 3, 9.0))
sketch8.addConstraint(Sketcher.Constraint("DistanceX", -1, 1, 2, 3, 41.0))
sketch8.addConstraint(Sketcher.Constraint("DistanceY", -1, 1, 0, 3, 71.814131))
sketch8.addConstraint(Sketcher.Constraint("DistanceY", -1, 1, 1, 3, 79.404328))
sketch8.addConstraint(Sketcher.Constraint("DistanceY", -1, 1, 2, 3, 105.405546))
pocket5 = body.newObject("PartDesign::Pocket", "Pocket004")
pocket5.Profile = sketch8
pocket5.Type = "ThroughAll"
pocket5.Reversed = True
body2 = doc.addObject("PartDesign::Body", "Body001")
doc.recompute()

mirroring = doc.addObject("Part::Mirroring", "Mirroring")
mirroring.Source = body
mirroring.Base = App.Vector(0, 0, 8)
mirroring.Normal = App.Vector(0, 0, -1)
body2.BaseFeature = mirroring
doc.recompute()

sketch9 = body2.newObject("Sketcher::SketchObject", "Sketch008")
sketch9.AttachmentSupport = (doc.getObject("XY_Plane001"), [""])
sketch9.MapMode = "FlatFace"
sketch9.AttachmentOffset = App.Placement(App.Vector(0, 0, 8), App.Rotation())
sketch9.addGeometry(Part.Circle(App.Vector(35, 79.4, 0), App.Vector(0, 0, 1), 12), False)
sketch9.addGeometry(Part.Circle(App.Vector(35, 79.4, 0), App.Vector(0, 0, 1), 8), False)
sketch9.addGeometry(Part.Circle(App.Vector(41, 105.4, 0), App.Vector(0, 0, 1), 2.5), False)
sketch9.addGeometry(Part.Circle(App.Vector(9, 79.4, 0), App.Vector(0, 0, 1), 2.5), False)
sketch9.addGeometry(Part.Circle(App.Vector(61, 71.8, 0), App.Vector(0, 0, 1), 2.5), False)
sketch9.addConstraint(Sketcher.Constraint("Coincident", 1, 3, 0, 3))
sketch9.addConstraint(Sketcher.Constraint("Equal", 2, 3))
sketch9.addConstraint(Sketcher.Constraint("Equal", 3, 4))
sketch9.addConstraint(Sketcher.Constraint("Diameter", 0, 24.0))
sketch9.addConstraint(Sketcher.Constraint("Diameter", 1, 16.0))
sketch9.addConstraint(Sketcher.Constraint("Diameter", 2, 5.0))
sketch9.addConstraint(Sketcher.Constraint("DistanceX", -1, 1, 0, 3, 35.0))
sketch9.addConstraint(Sketcher.Constraint("DistanceX", -1, 1, 2, 3, 41.0))
sketch9.addConstraint(Sketcher.Constraint("DistanceX", -1, 1, 3, 3, 9.0))
sketch9.addConstraint(Sketcher.Constraint("DistanceX", -1, 1, 4, 3, 61.0))
sketch9.addConstraint(Sketcher.Constraint("DistanceY", 0, 3, 2, 3, 26.0))
sketch9.addConstraint(Sketcher.Constraint("DistanceY", -1, 1, 4, 3, 71.814131))
sketch9.addConstraint(Sketcher.Constraint("DistanceY", -1, 1, 0, 3, 79.405546))
sketch9.addConstraint(Sketcher.Constraint("DistanceY", -1, 1, 3, 3, 79.404328))
pad4 = body2.newObject("PartDesign::Pad", "Pad003")
pad4.Profile = sketch9
pad4.Length = 8
body.Visibility = False
mirroring.Visibility = False

doc.recompute()
